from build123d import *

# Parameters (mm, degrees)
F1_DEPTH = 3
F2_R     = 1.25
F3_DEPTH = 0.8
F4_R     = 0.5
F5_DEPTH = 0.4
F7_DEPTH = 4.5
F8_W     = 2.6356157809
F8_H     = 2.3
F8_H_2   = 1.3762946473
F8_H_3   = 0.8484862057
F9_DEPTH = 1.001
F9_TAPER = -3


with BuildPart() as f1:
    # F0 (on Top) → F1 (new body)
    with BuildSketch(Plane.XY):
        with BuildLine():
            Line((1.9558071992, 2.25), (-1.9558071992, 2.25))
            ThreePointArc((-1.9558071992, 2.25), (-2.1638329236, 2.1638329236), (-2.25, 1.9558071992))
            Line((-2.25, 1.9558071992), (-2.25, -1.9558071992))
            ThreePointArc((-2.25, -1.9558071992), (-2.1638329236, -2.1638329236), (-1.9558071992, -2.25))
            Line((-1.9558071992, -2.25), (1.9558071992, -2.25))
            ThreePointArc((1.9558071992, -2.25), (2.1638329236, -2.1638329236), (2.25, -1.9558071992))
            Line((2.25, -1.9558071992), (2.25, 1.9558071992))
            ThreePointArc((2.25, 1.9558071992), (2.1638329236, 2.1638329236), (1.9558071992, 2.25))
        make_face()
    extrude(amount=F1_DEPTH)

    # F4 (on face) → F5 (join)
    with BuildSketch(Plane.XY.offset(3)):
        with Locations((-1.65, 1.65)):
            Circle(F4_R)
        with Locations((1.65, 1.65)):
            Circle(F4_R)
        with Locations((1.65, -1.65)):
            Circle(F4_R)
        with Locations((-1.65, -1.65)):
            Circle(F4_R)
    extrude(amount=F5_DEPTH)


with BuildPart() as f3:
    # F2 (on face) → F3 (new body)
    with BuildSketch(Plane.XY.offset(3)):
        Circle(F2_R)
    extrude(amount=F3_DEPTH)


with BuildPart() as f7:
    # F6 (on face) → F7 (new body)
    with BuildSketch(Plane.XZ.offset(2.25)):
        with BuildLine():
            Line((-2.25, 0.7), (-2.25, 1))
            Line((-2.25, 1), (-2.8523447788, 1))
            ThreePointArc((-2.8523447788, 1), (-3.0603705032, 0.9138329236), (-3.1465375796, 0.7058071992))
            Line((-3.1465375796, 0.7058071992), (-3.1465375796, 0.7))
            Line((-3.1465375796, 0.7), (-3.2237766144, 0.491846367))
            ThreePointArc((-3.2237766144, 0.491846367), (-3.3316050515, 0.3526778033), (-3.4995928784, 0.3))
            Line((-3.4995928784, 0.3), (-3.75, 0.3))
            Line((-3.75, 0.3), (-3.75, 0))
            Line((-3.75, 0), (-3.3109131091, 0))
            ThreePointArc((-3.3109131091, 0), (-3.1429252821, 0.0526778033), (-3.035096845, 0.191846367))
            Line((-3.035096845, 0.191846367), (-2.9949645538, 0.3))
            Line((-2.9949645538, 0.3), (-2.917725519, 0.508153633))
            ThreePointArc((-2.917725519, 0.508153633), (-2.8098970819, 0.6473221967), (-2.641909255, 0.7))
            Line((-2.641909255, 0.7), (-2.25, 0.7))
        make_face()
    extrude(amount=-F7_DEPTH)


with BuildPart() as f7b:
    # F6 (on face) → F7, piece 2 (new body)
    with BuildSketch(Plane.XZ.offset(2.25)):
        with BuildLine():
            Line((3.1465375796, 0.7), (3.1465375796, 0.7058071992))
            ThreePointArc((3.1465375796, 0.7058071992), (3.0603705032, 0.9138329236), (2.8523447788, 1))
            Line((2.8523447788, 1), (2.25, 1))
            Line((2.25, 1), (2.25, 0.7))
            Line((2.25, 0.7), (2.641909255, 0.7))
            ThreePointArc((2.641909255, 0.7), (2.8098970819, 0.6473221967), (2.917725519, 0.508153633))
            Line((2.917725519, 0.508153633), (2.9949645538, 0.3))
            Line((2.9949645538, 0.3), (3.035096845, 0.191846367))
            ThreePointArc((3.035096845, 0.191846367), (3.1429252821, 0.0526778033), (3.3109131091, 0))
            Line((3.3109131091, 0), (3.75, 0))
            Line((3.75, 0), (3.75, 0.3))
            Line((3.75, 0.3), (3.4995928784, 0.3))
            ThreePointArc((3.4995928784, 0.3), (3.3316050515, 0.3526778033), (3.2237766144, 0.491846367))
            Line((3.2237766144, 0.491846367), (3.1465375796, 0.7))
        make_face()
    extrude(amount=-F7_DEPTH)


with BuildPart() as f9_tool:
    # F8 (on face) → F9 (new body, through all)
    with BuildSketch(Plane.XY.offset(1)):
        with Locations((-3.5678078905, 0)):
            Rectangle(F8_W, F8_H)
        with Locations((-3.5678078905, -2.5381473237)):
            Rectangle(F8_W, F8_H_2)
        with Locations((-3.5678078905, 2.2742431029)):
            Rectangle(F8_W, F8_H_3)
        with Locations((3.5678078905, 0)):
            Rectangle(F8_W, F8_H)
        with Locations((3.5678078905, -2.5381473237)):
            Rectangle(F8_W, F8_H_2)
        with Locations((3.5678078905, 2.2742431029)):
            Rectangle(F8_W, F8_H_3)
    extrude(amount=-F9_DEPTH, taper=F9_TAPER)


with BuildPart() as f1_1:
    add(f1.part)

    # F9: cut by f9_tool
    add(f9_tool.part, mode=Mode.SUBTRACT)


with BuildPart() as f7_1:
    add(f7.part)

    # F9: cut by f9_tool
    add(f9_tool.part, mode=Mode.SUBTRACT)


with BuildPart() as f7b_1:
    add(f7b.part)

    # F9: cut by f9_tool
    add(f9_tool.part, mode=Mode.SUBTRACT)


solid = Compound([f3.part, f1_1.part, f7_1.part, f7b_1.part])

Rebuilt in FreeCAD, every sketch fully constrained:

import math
import FreeCAD as App
import Part
import Sketcher

V = App.Vector
Q = App.Units.Quantity

doc = App.newDocument("Part")
params = doc.addObject("Spreadsheet::Sheet", "Params")
for row, (alias, value) in enumerate([
    ("pad1_length", "3 mm"),
    ("sketch2_diameter", "1 mm"),
    ("pad2_length", "0.4 mm"),
    ("sketch3_diameter", "2.5 mm"),
    ("pad3_length", "0.8 mm"),
    ("sketch4_height", "0.3 mm"),
    ("pad4_length", "4.5 mm"),
    ("sketch5_height", "0.3 mm"),
    ("pad5_length", "4.5 mm"),
    ("sketch6_height", "2.3 mm"),
    ("pad6_length", "1.001 mm"),
    ("pad6_taper", "3 deg"),
], start=1):
    params.set(f"A{row}", alias)
    params.set(f"B{row}", "=" + value)
    params.setAlias(f"B{row}", alias)

body = doc.addObject("PartDesign::Body", "Body")

# Sketch on XY plane
sketch1 = body.newObject("Sketcher::SketchObject", "Sketch")
sketch1.AttachmentSupport = (doc.getObject("XY_Plane"), [""])
sketch1.MapMode = "FlatFace"
sketch1.addGeometry(Part.LineSegment(V(1.96, 2.25, 0), V(-1.96, 2.25, 0)), False)
sketch1.addGeometry(Part.ArcOfCircle(Part.Circle(V(-1.96, 1.96, 0), V(0, 0, 1), 0.29), math.radians(90), math.radians(180)), False)
sketch1.addGeometry(Part.LineSegment(V(-2.25, 1.96, 0), V(-2.25, -1.96, 0)), False)
sketch1.addGeometry(Part.ArcOfCircle(Part.Circle(V(-1.96, -1.96, 0), V(0, 0, 1), 0.29), math.radians(180), math.radians(270)), False)
sketch1.addGeometry(Part.LineSegment(V(-1.96, -2.25, 0), V(1.96, -2.25, 0)), False)
sketch1.addGeometry(Part.ArcOfCircle(Part.Circle(V(1.96, -1.96, 0), V(0, 0, 1), 0.29), math.radians(-90), math.radians(0)), False)
sketch1.addGeometry(Part.LineSegment(V(2.25, -1.96, 0), V(2.25, 1.96, 0)), False)
sketch1.addGeometry(Part.ArcOfCircle(Part.Circle(V(1.96, 1.96, 0), V(0, 0, 1), 0.29), math.radians(0), math.radians(90)), False)
sketch1.addConstraint(Sketcher.Constraint("Tangent", 0, 2, 1, 1))
sketch1.addConstraint(Sketcher.Constraint("Tangent", 1, 2, 2, 1))
sketch1.addConstraint(Sketcher.Constraint("Tangent", 2, 2, 3, 1))
sketch1.addConstraint(Sketcher.Constraint("Tangent", 3, 2, 4, 1))
sketch1.addConstraint(Sketcher.Constraint("Tangent", 4, 2, 5, 1))
sketch1.addConstraint(Sketcher.Constraint("Tangent", 5, 2, 6, 1))
sketch1.addConstraint(Sketcher.Constraint("Tangent", 6, 2, 7, 1))
sketch1.addConstraint(Sketcher.Constraint("Tangent", 7, 2, 0, 1))
sketch1.addConstraint(Sketcher.Constraint("Horizontal", 0))
sketch1.addConstraint(Sketcher.Constraint("Vertical", 2))
sketch1.addConstraint(Sketcher.Constraint("Horizontal", 4))
sketch1.addConstraint(Sketcher.Constraint("Vertical", 6))
sketch1.addConstraint(Sketcher.Constraint("Equal", 1, 3))
sketch1.addConstraint(Sketcher.Constraint("Equal", 3, 5))
sketch1.addConstraint(Sketcher.Constraint("Equal", 5, 7))
sketch1.addConstraint(Sketcher.Constraint("Symmetric", 1, 3, 5, 3, -1, 1))
sketch1.addConstraint(Sketcher.Constraint("Equal", 4, 2))
sketch1.addConstraint(Sketcher.Constraint("DistanceY", -1, 1, 0, 2, Q("2.25 mm")))
sketch1.addConstraint(Sketcher.Constraint("Radius", 1, Q("0.294193 mm")))
pad1 = body.newObject("PartDesign::Pad", "Pad")
pad1.Profile = sketch1
pad1.setExpression("Length", "Params.pad1_length")

# Sketch on XY plane
sketch2 = body.newObject("Sketcher::SketchObject", "Sketch001")
sketch2.AttachmentSupport = (doc.getObject("XY_Plane"), [""])
sketch2.MapMode = "FlatFace"
sketch2.AttachmentOffset = App.Placement(V(0, 0, 3), App.Rotation())
sketch2.addGeometry(Part.Circle(V(-1.6, 1.6, 0), V(0, 0, 1), 0.5), False)
sketch2.addGeometry(Part.Circle(V(1.6, 1.6, 0), V(0, 0, 1), 0.5), False)
sketch2.addGeometry(Part.Circle(V(1.6, -1.6, 0), V(0, 0, 1), 0.5), False)
sketch2.addGeometry(Part.Circle(V(-1.6, -1.6, 0), V(0, 0, 1), 0.5), False)
sketch2.addConstraint(Sketcher.Constraint("Equal", 0, 1))
sketch2.addConstraint(Sketcher.Constraint("Equal", 1, 2))
sketch2.addConstraint(Sketcher.Constraint("Equal", 2, 3))
sketch2.addConstraint(Sketcher.Constraint("Symmetric", 0, 3, 2, 3, -1, 1))
sketch2.addConstraint(Sketcher.Constraint("Symmetric", 1, 3, 3, 3, -1, 1))
sketch2.addConstraint(Sketcher.Constraint("Symmetric", 0, 3, 1, 3, -2))
sketch2.addConstraint(Sketcher.Constraint("Diameter", 0, Q("1 mm")))
sketch2.addConstraint(Sketcher.Constraint("DistanceX", 0, 3, 1, 3, Q("3.3 mm")))
sketch2.addConstraint(Sketcher.Constraint("DistanceY", 2, 3, 1, 3, Q("3.3 mm")))
sketch2.setExpression("Constraints[6]", "Params.sketch2_diameter")
pad2 = body.newObject("PartDesign::Pad", "Pad001")
pad2.Profile = sketch2
pad2.setExpression("Length", "Params.pad2_length")
body2 = doc.addObject("PartDesign::Body", "Body001")

# Sketch on XY plane
sketch3 = body2.newObject("Sketcher::SketchObject", "Sketch002")
sketch3.AttachmentSupport = (doc.getObject("XY_Plane001"), [""])
sketch3.MapMode = "FlatFace"
sketch3.AttachmentOffset = App.Placement(V(0, 0, 3), App.Rotation())
sketch3.addGeometry(Part.Circle(V(0, 0, 0), V(0, 0, 1), 1.2), False)
sketch3.addConstraint(Sketcher.Constraint("Coincident", 0, 3, -1, 1))
sketch3.addConstraint(Sketcher.Constraint("Diameter", 0, Q("2.5 mm")))
sketch3.setExpression("Constraints[1]", "Params.sketch3_diameter")
pad3 = body2.newObject("PartDesign::Pad", "Pad002")
pad3.Profile = sketch3
pad3.setExpression("Length", "Params.pad3_length")
body3 = doc.addObject("PartDesign::Body", "Body002")

# Sketch on XZ plane
sketch4 = body3.newObject("Sketcher::SketchObject", "Sketch003")
sketch4.AttachmentSupport = (doc.getObject("XZ_Plane002"), [""])
sketch4.MapMode = "FlatFace"
sketch4.AttachmentOffset = App.Placement(V(0, 0, 2.25), App.Rotation())
sketch4.addGeometry(Part.LineSegment(V(-2.25, 0.7, 0), V(-2.25, 1, 0)), False)
sketch4.addGeometry(Part.LineSegment(V(-2.25, 1, 0), V(-2.852, 1, 0)), False)
sketch4.addGeometry(Part.ArcOfCircle(Part.Circle(V(-2.852, 0.706, 0), V(0, 0, 1), 0.294), math.radians(90), math.radians(180)), False)
sketch4.addGeometry(Part.LineSegment(V(-3.147, 0.706, 0), V(-3.147, 0.7, 0)), False)
sketch4.addGeometry(Part.LineSegment(V(-3.147, 0.7, 0), V(-3.224, 0.492, 0)), False)
sketch4.addGeometry(Part.ArcOfCircle(Part.Circle(V(-3.5, 0.594, 0), V(0, 0, 1), 0.294), math.radians(-90), math.radians(-20)), False)
sketch4.addGeometry(Part.LineSegment(V(-3.5, 0.3, 0), V(-3.75, 0.3, 0)), False)
sketch4.addGeometry(Part.LineSegment(V(-3.75, 0.3, 0), V(-3.75, 0, 0)), False)
sketch4.addGeometry(Part.LineSegment(V(-3.75, 0, 0), V(-3.311, 0, 0)), False)
sketch4.addGeometry(Part.ArcOfCircle(Part.Circle(V(-3.311, 0.294, 0), V(0, 0, 1), 0.294), math.radians(-90), math.radians(-20)), False)
sketch4.addGeometry(Part.LineSegment(V(-3.035, 0.192, 0), V(-2.995, 0.3, 0)), False)
sketch4.addGeometry(Part.LineSegment(V(-2.995, 0.3, 0), V(-2.918, 0.508, 0)), False)
sketch4.addGeometry(Part.ArcOfCircle(Part.Circle(V(-2.642, 0.406, 0), V(0, 0, 1), 0.294), math.radians(90), math.radians(160)), False)
sketch4.addGeometry(Part.LineSegment(V(-2.642, 0.7, 0), V(-2.25, 0.7, 0)), False)
sketch4.addConstraint(Sketcher.Constraint("Coincident", 0, 2, 1, 1))
sketch4.addConstraint(Sketcher.Constraint("Tangent", 1, 2, 2, 1))
sketch4.addConstraint(Sketcher.Constraint("Tangent", 2, 2, 3, 1))
sketch4.addConstraint(Sketcher.Constraint("Coincident", 3, 2, 4, 1))
sketch4.addConstraint(Sketcher.Constraint("Tangent", 4, 2, 5, 2))
sketch4.addConstraint(Sketcher.Constraint("Tangent", 5, 1, 6, 1))
sketch4.addConstraint(Sketcher.Constraint("Coincident", 6, 2, 7, 1))
sketch4.addConstraint(Sketcher.Constraint("Coincident", 7, 2, 8, 1))
sketch4.addConstraint(Sketcher.Constraint("Tangent", 8, 2, 9, 1))
sketch4.addConstraint(Sketcher.Constraint("Tangent", 9, 2, 10, 1))
sketch4.addConstraint(Sketcher.Constraint("Coincident", 10, 2, 11, 1))
sketch4.addConstraint(Sketcher.Constraint("Tangent", 11, 2, 12, 2))
sketch4.addConstraint(Sketcher.Constraint("Tangent", 12, 1, 13, 1))
sketch4.addConstraint(Sketcher.Constraint("Coincident", 13, 2, 0, 1))
sketch4.addConstraint(Sketcher.Constraint("Vertical", 0))
sketch4.addConstraint(Sketcher.Constraint("Horizontal", 1))
sketch4.addConstraint(Sketcher.Constraint("Vertical", 3))
sketch4.addConstraint(Sketcher.Constraint("Horizontal", 6))
sketch4.addConstraint(Sketcher.Constraint("Vertical", 7))
sketch4.addConstraint(Sketcher.Constraint("Horizontal", 8))
sketch4.addConstraint(Sketcher.Constraint("Horizontal", 13))
sketch4.addConstraint(Sketcher.Constraint("Equal", 2, 5))
sketch4.addConstraint(Sketcher.Constraint("Equal", 5, 9))
sketch4.addConstraint(Sketcher.Constraint("Equal", 9, 12))
sketch4.addConstraint(Sketcher.Constraint("PointOnObject", 7, 2, -1))
sketch4.addConstraint(Sketcher.Constraint("Parallel", 4, 10))
sketch4.addConstraint(Sketcher.Constraint("Parallel", 10, 11))
sketch4.addConstraint(Sketcher.Constraint("Horizontal", 6, 2, 10, 2))
sketch4.addConstraint(Sketcher.Constraint("Horizontal", 3, 2, 12, 1))
sketch4.addConstraint(Sketcher.Constraint("Equal", 0, 7))
sketch4.addConstraint(Sketcher.Constraint("DistanceY", 0, 1, 0, 2, Q("0.3 mm")))
sketch4.addConstraint(Sketcher.Constraint("DistanceY", -1, 1, 0, 2, Q("1 mm")))
sketch4.addConstraint(Sketcher.Constraint("DistanceX", 0, 2, -1, 1, Q("2.25 mm")))
sketch4.addConstraint(Sketcher.Constraint("DistanceX", 6, 2, -1, 1, Q("3.75 mm")))
sketch4.addConstraint(Sketcher.Constraint("Radius", 2, Q("0.294193 mm")))
sketch4.addConstraint(Sketcher.Constraint("DistanceX", 13, 1, 13, 2, Q("0.391909 mm")))
sketch4.addConstraint(Sketcher.Constraint("Distance", 10, Q("0.115359 mm")))
sketch4.addConstraint(Sketcher.Constraint("DistanceX", 1, 2, 1, 1, Q("0.602345 mm")))
sketch4.setExpression("Constraints[30]", "Params.sketch4_height")
pad4 = body3.newObject("PartDesign::Pad", "Pad003")
pad4.Profile = sketch4
pad4.setExpression("Length", "Params.pad4_length")
pad4.Reversed = True
body4 = doc.addObject("PartDesign::Body", "Body003")

# Sketch on XZ plane
sketch5 = body4.newObject("Sketcher::SketchObject", "Sketch004")
sketch5.AttachmentSupport = (doc.getObject("XZ_Plane003"), [""])
sketch5.MapMode = "FlatFace"
sketch5.AttachmentOffset = App.Placement(V(0, 0, 2.25), App.Rotation())
sketch5.addGeometry(Part.LineSegment(V(3.147, 0.7, 0), V(3.147, 0.706, 0)), False)
sketch5.addGeometry(Part.ArcOfCircle(Part.Circle(V(2.852, 0.706, 0), V(0, 0, 1), 0.294), math.radians(0), math.radians(90)), False)
sketch5.addGeometry(Part.LineSegment(V(2.852, 1, 0), V(2.25, 1, 0)), False)
sketch5.addGeometry(Part.LineSegment(V(2.25, 1, 0), V(2.25, 0.7, 0)), False)
sketch5.addGeometry(Part.LineSegment(V(2.25, 0.7, 0), V(2.642, 0.7, 0)), False)
sketch5.addGeometry(Part.ArcOfCircle(Part.Circle(V(2.642, 0.406, 0), V(0, 0, 1), 0.294), math.radians(20), math.radians(90)), False)
sketch5.addGeometry(Part.LineSegment(V(2.918, 0.508, 0), V(2.995, 0.3, 0)), False)
sketch5.addGeometry(Part.LineSegment(V(2.995, 0.3, 0), V(3.035, 0.192, 0)), False)
sketch5.addGeometry(Part.ArcOfCircle(Part.Circle(V(3.311, 0.294, 0), V(0, 0, 1), 0.294), math.radians(-160), math.radians(-90)), False)
sketch5.addGeometry(Part.LineSegment(V(3.311, 0, 0), V(3.75, 0, 0)), False)
sketch5.addGeometry(Part.LineSegment(V(3.75, 0, 0), V(3.75, 0.3, 0)), False)
sketch5.addGeometry(Part.LineSegment(V(3.75, 0.3, 0), V(3.5, 0.3, 0)), False)
sketch5.addGeometry(Part.ArcOfCircle(Part.Circle(V(3.5, 0.594, 0), V(0, 0, 1), 0.294), math.radians(-160), math.radians(-90)), False)
sketch5.addGeometry(Part.LineSegment(V(3.224, 0.492, 0), V(3.147, 0.7, 0)), False)
sketch5.addConstraint(Sketcher.Constraint("Tangent", 0, 2, 1, 1))
sketch5.addConstraint(Sketcher.Constraint("Tangent", 1, 2, 2, 1))
sketch5.addConstraint(Sketcher.Constraint("Coincident", 2, 2, 3, 1))
sketch5.addConstraint(Sketcher.Constraint("Coincident", 3, 2, 4, 1))
sketch5.addConstraint(Sketcher.Constraint("Tangent", 4, 2, 5, 2))
sketch5.addConstraint(Sketcher.Constraint("Tangent", 5, 1, 6, 1))
sketch5.addConstraint(Sketcher.Constraint("Coincident", 6, 2, 7, 1))
sketch5.addConstraint(Sketcher.Constraint("Tangent", 7, 2, 8, 1))
sketch5.addConstraint(Sketcher.Constraint("Tangent", 8, 2, 9, 1))
sketch5.addConstraint(Sketcher.Constraint("Coincident", 9, 2, 10, 1))
sketch5.addConstraint(Sketcher.Constraint("Coincident", 10, 2, 11, 1))
sketch5.addConstraint(Sketcher.Constraint("Tangent", 11, 2, 12, 2))
sketch5.addConstraint(Sketcher.Constraint("Tangent", 12, 1, 13, 1))
sketch5.addConstraint(Sketcher.Constraint("Coincident", 13, 2, 0, 1))
sketch5.addConstraint(Sketcher.Constraint("Vertical", 0))
sketch5.addConstraint(Sketcher.Constraint("Horizontal", 2))
sketch5.addConstraint(Sketcher.Constraint("Vertical", 3))
sketch5.addConstraint(Sketcher.Constraint("Horizontal", 4))
sketch5.addConstraint(Sketcher.Constraint("Horizontal", 9))
sketch5.addConstraint(Sketcher.Constraint("Vertical", 10))
sketch5.addConstraint(Sketcher.Constraint("Horizontal", 11))
sketch5.addConstraint(Sketcher.Constraint("Equal", 1, 5))
sketch5.addConstraint(Sketcher.Constraint("Equal", 5, 8))
sketch5.addConstraint(Sketcher.Constraint("Equal", 8, 12))
sketch5.addConstraint(Sketcher.Constraint("PointOnObject", 8, 2, -1))
sketch5.addConstraint(Sketcher.Constraint("Parallel", 6, 7))
sketch5.addConstraint(Sketcher.Constraint("Parallel", 7, 13))
sketch5.addConstraint(Sketcher.Constraint("Horizontal", 6, 2, 10, 2))
sketch5.addConstraint(Sketcher.Constraint("Horizontal", 4, 2, 13, 2))
sketch5.addConstraint(Sketcher.Constraint("Equal", 3, 10))
sketch5.addConstraint(Sketcher.Constraint("DistanceY", 3, 2, 3, 1, Q("0.3 mm")))
sketch5.addConstraint(Sketcher.Constraint("DistanceY", -1, 1, 1, 2, Q("1 mm")))
sketch5.addConstraint(Sketcher.Constraint("DistanceX", -1, 1, 2, 2, Q("2.25 mm")))
sketch5.addConstraint(Sketcher.Constraint("DistanceX", -1, 1, 9, 2, Q("3.75 mm")))
sketch5.addConstraint(Sketcher.Constraint("Radius", 1, Q("0.294193 mm")))
sketch5.addConstraint(Sketcher.Constraint("DistanceX", 4, 1, 4, 2, Q("0.391909 mm")))
sketch5.addConstraint(Sketcher.Constraint("Distance", 7, Q("0.115359 mm")))
sketch5.addConstraint(Sketcher.Constraint("DistanceX", 2, 2, 2, 1, Q("0.602345 mm")))
sketch5.setExpression("Constraints[30]", "Params.sketch5_height")
pad5 = body4.newObject("PartDesign::Pad", "Pad004")
pad5.Profile = sketch5
pad5.setExpression("Length", "Params.pad5_length")
pad5.Reversed = True
body5 = doc.addObject("PartDesign::Body", "Body004")
body5.AllowCompound = True

# Sketch on XY plane
sketch6 = body5.newObject("Sketcher::SketchObject", "Sketch005")
sketch6.AttachmentSupport = (doc.getObject("XY_Plane004"), [""])
sketch6.MapMode = "FlatFace"
sketch6.AttachmentOffset = App.Placement(V(0, 0, 1), App.Rotation())
sketch6.addGeometry(Part.LineSegment(V(-4.9, 1.1, 0), V(-4.9, -1.1, 0)), False)
sketch6.addGeometry(Part.LineSegment(V(-4.9, -1.1, 0), V(-2.2, -1.1, 0)), False)
sketch6.addGeometry(Part.LineSegment(V(-2.2, -1.1, 0), V(-2.2, 1.1, 0)), False)
sketch6.addGeometry(Part.LineSegment(V(-2.2, 1.1, 0), V(-4.9, 1.1, 0)), False)
sketch6.addGeometry(Part.LineSegment(V(-4.9, -1.9, 0), V(-4.9, -3.2, 0)), False)
sketch6.addGeometry(Part.LineSegment(V(-4.9, -3.2, 0), V(-2.2, -3.2, 0)), False)
sketch6.addGeometry(Part.LineSegment(V(-2.2, -3.2, 0), V(-2.2, -1.9, 0)), False)
sketch6.addGeometry(Part.LineSegment(V(-2.2, -1.9, 0), V(-4.9, -1.9, 0)), False)
sketch6.addGeometry(Part.LineSegment(V(-4.9, 2.7, 0), V(-4.9, 1.9, 0)), False)
sketch6.addGeometry(Part.LineSegment(V(-4.9, 1.9, 0), V(-2.2, 1.9, 0)), False)
sketch6.addGeometry(Part.LineSegment(V(-2.2, 1.9, 0), V(-2.2, 2.7, 0)), False)
sketch6.addGeometry(Part.LineSegment(V(-2.2, 2.7, 0), V(-4.9, 2.7, 0)), False)
sketch6.addGeometry(Part.LineSegment(V(2.2, 1.1, 0), V(2.2, -1.1, 0)), False)
sketch6.addGeometry(Part.LineSegment(V(2.2, -1.1, 0), V(4.9, -1.1, 0)), False)
sketch6.addGeometry(Part.LineSegment(V(4.9, -1.1, 0), V(4.9, 1.1, 0)), False)
sketch6.addGeometry(Part.LineSegment(V(4.9, 1.1, 0), V(2.2, 1.1, 0)), False)
sketch6.addGeometry(Part.LineSegment(V(2.2, -1.9, 0), V(2.2, -3.2, 0)), False)
sketch6.addGeometry(Part.LineSegment(V(2.2, -3.2, 0), V(4.9, -3.2, 0)), False)
sketch6.addGeometry(Part.LineSegment(V(4.9, -3.2, 0), V(4.9, -1.9, 0)), False)
sketch6.addGeometry(Part.LineSegment(V(4.9, -1.9, 0), V(2.2, -1.9, 0)), False)
sketch6.addGeometry(Part.LineSegment(V(2.2, 2.7, 0), V(2.2, 1.9, 0)), False)
sketch6.addGeometry(Part.LineSegment(V(2.2, 1.9, 0), V(4.9, 1.9, 0)), False)
sketch6.addGeometry(Part.LineSegment(V(4.9, 1.9, 0), V(4.9, 2.7, 0)), False)
sketch6.addGeometry(Part.LineSegment(V(4.9, 2.7, 0), V(2.2, 2.7, 0)), False)
sketch6.addConstraint(Sketcher.Constraint("Coincident", 0, 2, 1, 1))
sketch6.addConstraint(Sketcher.Constraint("Coincident", 1, 2, 2, 1))
sketch6.addConstraint(Sketcher.Constraint("Coincident", 2, 2, 3, 1))
sketch6.addConstraint(Sketcher.Constraint("Coincident", 3, 2, 0, 1))
sketch6.addConstraint(Sketcher.Constraint("Coincident", 4, 2, 5, 1))
sketch6.addConstraint(Sketcher.Constraint("Coincident", 5, 2, 6, 1))
sketch6.addConstraint(Sketcher.Constraint("Coincident", 6, 2, 7, 1))
sketch6.addConstraint(Sketcher.Constraint("Coincident", 7, 2, 4, 1))
sketch6.addConstraint(Sketcher.Constraint("Coincident", 8, 2, 9, 1))
sketch6.addConstraint(Sketcher.Constraint("Coincident", 9, 2, 10, 1))
sketch6.addConstraint(Sketcher.Constraint("Coincident", 10, 2, 11, 1))
sketch6.addConstraint(Sketcher.Constraint("Coincident", 11, 2, 8, 1))
sketch6.addConstraint(Sketcher.Constraint("Coincident", 12, 2, 13, 1))
sketch6.addConstraint(Sketcher.Constraint("Coincident", 13, 2, 14, 1))
sketch6.addConstraint(Sketcher.Constraint("Coincident", 14, 2, 15, 1))
sketch6.addConstraint(Sketcher.Constraint("Coincident", 15, 2, 12, 1))
sketch6.addConstraint(Sketcher.Constraint("Coincident", 16, 2, 17, 1))
sketch6.addConstraint(Sketcher.Constraint("Coincident", 17, 2, 18, 1))
sketch6.addConstraint(Sketcher.Constraint("Coincident", 18, 2, 19, 1))
sketch6.addConstraint(Sketcher.Constraint("Coincident", 19, 2, 16, 1))
sketch6.addConstraint(Sketcher.Constraint("Coincident", 20, 2, 21, 1))
sketch6.addConstraint(Sketcher.Constraint("Coincident", 21, 2, 22, 1))
sketch6.addConstraint(Sketcher.Constraint("Coincident", 22, 2, 23, 1))
sketch6.addConstraint(Sketcher.Constraint("Coincident", 23, 2, 20, 1))
sketch6.addConstraint(Sketcher.Constraint("Vertical", 0))
sketch6.addConstraint(Sketcher.Constraint("Horizontal", 1))
sketch6.addConstraint(Sketcher.Constraint("Vertical", 2))
sketch6.addConstraint(Sketcher.Constraint("Horizontal", 3))
sketch6.addConstraint(Sketcher.Constraint("Vertical", 4))
sketch6.addConstraint(Sketcher.Constraint("Horizontal", 5))
sketch6.addConstraint(Sketcher.Constraint("Vertical", 6))
sketch6.addConstraint(Sketcher.Constraint("Horizontal", 7))
sketch6.addConstraint(Sketcher.Constraint("Vertical", 8))
sketch6.addConstraint(Sketcher.Constraint("Horizontal", 9))
sketch6.addConstraint(Sketcher.Constraint("Vertical", 10))
sketch6.addConstraint(Sketcher.Constraint("Horizontal", 11))
sketch6.addConstraint(Sketcher.Constraint("Vertical", 12))
sketch6.addConstraint(Sketcher.Constraint("Horizontal", 13))
sketch6.addConstraint(Sketcher.Constraint("Vertical", 14))
sketch6.addConstraint(Sketcher.Constraint("Horizontal", 15))
sketch6.addConstraint(Sketcher.Constraint("Vertical", 16))
sketch6.addConstraint(Sketcher.Constraint("Horizontal", 17))
sketch6.addConstraint(Sketcher.Constraint("Vertical", 18))
sketch6.addConstraint(Sketcher.Constraint("Horizontal", 19))
sketch6.addConstraint(Sketcher.Constraint("Vertical", 20))
sketch6.addConstraint(Sketcher.Constraint("Horizontal", 21))
sketch6.addConstraint(Sketcher.Constraint("Vertical", 22))
sketch6.addConstraint(Sketcher.Constraint("Horizontal", 23))
sketch6.addConstraint(Sketcher.Constraint("Symmetric", 2, 2, 12, 2, -1, 1))
sketch6.addConstraint(Sketcher.Constraint("Symmetric", 0, 2, 14, 2, -1, 1))
sketch6.addConstraint(Sketcher.Constraint("Symmetric", 8, 2, 18, 2, -1, 1))
sketch6.addConstraint(Sketcher.Constraint("Symmetric", 6, 2, 20, 2, -1, 1))
sketch6.addConstraint(Sketcher.Constraint("Symmetric", 5, 2, 16, 2, -2))
sketch6.addConstraint(Sketcher.Constraint("Symmetric", 7, 2, 18, 2, -2))
sketch6.addConstraint(Sketcher.Constraint("Symmetric", 11, 2, 22, 2, -2))
sketch6.addConstraint(Sketcher.Constraint("Horizontal", 1, 2, 12, 2))
sketch6.addConstraint(Sketcher.Constraint("Vertical", 3, 2, 4, 2))
sketch6.addConstraint(Sketcher.Constraint("Vertical", 2, 2, 5, 2))
sketch6.addConstraint(Sketcher.Constraint("Vertical", 6, 2, 9, 2))
sketch6.addConstraint(Sketcher.Constraint("DistanceY", 0, 2, 0, 1, Q("2.3 mm")))
sketch6.addConstraint(Sketcher.Constraint("DistanceY", 6, 2, 2, 2, Q("3 mm")))
sketch6.addConstraint(Sketcher.Constraint("DistanceX", 1, 2, 12, 2, Q("4.5 mm")))
sketch6.addConstraint(Sketcher.Constraint("DistanceX", 1, 1, 1, 2, Q("2.635616 mm")))
sketch6.addConstraint(Sketcher.Constraint("DistanceY", 4, 2, 4, 1, Q("1.376295 mm")))
sketch6.addConstraint(Sketcher.Constraint("DistanceY", 8, 2, 8, 1, Q("0.848486 mm")))
sketch6.setExpression("Constraints[59]", "Params.sketch6_height")
pad6 = body5.newObject("PartDesign::Pad", "Pad005")
pad6.Profile = sketch6
pad6.setExpression("Length", "Params.pad6_length")
pad6.Reversed = True
pad6.setExpression("TaperAngle", "Params.pad6_taper")
doc.recompute()

body6 = doc.addObject("PartDesign::Body", "Body005")
body6.BaseFeature = body5
boolean = body.newObject("PartDesign::Boolean", "Boolean")
boolean.Type = "Cut"
boolean.addObjects([body6])
doc.recompute()
body3.AllowCompound = True
doc.recompute()

body7 = doc.addObject("PartDesign::Body", "Body006")
body7.BaseFeature = body5
boolean2 = body3.newObject("PartDesign::Boolean", "Boolean001")
boolean2.Type = "Cut"
boolean2.addObjects([body7])
doc.recompute()
body4.AllowCompound = True
doc.recompute()

boolean3 = body4.newObject("PartDesign::Boolean", "Boolean002")
boolean3.Type = "Cut"
boolean3.addObjects([body5])

doc.recompute()
